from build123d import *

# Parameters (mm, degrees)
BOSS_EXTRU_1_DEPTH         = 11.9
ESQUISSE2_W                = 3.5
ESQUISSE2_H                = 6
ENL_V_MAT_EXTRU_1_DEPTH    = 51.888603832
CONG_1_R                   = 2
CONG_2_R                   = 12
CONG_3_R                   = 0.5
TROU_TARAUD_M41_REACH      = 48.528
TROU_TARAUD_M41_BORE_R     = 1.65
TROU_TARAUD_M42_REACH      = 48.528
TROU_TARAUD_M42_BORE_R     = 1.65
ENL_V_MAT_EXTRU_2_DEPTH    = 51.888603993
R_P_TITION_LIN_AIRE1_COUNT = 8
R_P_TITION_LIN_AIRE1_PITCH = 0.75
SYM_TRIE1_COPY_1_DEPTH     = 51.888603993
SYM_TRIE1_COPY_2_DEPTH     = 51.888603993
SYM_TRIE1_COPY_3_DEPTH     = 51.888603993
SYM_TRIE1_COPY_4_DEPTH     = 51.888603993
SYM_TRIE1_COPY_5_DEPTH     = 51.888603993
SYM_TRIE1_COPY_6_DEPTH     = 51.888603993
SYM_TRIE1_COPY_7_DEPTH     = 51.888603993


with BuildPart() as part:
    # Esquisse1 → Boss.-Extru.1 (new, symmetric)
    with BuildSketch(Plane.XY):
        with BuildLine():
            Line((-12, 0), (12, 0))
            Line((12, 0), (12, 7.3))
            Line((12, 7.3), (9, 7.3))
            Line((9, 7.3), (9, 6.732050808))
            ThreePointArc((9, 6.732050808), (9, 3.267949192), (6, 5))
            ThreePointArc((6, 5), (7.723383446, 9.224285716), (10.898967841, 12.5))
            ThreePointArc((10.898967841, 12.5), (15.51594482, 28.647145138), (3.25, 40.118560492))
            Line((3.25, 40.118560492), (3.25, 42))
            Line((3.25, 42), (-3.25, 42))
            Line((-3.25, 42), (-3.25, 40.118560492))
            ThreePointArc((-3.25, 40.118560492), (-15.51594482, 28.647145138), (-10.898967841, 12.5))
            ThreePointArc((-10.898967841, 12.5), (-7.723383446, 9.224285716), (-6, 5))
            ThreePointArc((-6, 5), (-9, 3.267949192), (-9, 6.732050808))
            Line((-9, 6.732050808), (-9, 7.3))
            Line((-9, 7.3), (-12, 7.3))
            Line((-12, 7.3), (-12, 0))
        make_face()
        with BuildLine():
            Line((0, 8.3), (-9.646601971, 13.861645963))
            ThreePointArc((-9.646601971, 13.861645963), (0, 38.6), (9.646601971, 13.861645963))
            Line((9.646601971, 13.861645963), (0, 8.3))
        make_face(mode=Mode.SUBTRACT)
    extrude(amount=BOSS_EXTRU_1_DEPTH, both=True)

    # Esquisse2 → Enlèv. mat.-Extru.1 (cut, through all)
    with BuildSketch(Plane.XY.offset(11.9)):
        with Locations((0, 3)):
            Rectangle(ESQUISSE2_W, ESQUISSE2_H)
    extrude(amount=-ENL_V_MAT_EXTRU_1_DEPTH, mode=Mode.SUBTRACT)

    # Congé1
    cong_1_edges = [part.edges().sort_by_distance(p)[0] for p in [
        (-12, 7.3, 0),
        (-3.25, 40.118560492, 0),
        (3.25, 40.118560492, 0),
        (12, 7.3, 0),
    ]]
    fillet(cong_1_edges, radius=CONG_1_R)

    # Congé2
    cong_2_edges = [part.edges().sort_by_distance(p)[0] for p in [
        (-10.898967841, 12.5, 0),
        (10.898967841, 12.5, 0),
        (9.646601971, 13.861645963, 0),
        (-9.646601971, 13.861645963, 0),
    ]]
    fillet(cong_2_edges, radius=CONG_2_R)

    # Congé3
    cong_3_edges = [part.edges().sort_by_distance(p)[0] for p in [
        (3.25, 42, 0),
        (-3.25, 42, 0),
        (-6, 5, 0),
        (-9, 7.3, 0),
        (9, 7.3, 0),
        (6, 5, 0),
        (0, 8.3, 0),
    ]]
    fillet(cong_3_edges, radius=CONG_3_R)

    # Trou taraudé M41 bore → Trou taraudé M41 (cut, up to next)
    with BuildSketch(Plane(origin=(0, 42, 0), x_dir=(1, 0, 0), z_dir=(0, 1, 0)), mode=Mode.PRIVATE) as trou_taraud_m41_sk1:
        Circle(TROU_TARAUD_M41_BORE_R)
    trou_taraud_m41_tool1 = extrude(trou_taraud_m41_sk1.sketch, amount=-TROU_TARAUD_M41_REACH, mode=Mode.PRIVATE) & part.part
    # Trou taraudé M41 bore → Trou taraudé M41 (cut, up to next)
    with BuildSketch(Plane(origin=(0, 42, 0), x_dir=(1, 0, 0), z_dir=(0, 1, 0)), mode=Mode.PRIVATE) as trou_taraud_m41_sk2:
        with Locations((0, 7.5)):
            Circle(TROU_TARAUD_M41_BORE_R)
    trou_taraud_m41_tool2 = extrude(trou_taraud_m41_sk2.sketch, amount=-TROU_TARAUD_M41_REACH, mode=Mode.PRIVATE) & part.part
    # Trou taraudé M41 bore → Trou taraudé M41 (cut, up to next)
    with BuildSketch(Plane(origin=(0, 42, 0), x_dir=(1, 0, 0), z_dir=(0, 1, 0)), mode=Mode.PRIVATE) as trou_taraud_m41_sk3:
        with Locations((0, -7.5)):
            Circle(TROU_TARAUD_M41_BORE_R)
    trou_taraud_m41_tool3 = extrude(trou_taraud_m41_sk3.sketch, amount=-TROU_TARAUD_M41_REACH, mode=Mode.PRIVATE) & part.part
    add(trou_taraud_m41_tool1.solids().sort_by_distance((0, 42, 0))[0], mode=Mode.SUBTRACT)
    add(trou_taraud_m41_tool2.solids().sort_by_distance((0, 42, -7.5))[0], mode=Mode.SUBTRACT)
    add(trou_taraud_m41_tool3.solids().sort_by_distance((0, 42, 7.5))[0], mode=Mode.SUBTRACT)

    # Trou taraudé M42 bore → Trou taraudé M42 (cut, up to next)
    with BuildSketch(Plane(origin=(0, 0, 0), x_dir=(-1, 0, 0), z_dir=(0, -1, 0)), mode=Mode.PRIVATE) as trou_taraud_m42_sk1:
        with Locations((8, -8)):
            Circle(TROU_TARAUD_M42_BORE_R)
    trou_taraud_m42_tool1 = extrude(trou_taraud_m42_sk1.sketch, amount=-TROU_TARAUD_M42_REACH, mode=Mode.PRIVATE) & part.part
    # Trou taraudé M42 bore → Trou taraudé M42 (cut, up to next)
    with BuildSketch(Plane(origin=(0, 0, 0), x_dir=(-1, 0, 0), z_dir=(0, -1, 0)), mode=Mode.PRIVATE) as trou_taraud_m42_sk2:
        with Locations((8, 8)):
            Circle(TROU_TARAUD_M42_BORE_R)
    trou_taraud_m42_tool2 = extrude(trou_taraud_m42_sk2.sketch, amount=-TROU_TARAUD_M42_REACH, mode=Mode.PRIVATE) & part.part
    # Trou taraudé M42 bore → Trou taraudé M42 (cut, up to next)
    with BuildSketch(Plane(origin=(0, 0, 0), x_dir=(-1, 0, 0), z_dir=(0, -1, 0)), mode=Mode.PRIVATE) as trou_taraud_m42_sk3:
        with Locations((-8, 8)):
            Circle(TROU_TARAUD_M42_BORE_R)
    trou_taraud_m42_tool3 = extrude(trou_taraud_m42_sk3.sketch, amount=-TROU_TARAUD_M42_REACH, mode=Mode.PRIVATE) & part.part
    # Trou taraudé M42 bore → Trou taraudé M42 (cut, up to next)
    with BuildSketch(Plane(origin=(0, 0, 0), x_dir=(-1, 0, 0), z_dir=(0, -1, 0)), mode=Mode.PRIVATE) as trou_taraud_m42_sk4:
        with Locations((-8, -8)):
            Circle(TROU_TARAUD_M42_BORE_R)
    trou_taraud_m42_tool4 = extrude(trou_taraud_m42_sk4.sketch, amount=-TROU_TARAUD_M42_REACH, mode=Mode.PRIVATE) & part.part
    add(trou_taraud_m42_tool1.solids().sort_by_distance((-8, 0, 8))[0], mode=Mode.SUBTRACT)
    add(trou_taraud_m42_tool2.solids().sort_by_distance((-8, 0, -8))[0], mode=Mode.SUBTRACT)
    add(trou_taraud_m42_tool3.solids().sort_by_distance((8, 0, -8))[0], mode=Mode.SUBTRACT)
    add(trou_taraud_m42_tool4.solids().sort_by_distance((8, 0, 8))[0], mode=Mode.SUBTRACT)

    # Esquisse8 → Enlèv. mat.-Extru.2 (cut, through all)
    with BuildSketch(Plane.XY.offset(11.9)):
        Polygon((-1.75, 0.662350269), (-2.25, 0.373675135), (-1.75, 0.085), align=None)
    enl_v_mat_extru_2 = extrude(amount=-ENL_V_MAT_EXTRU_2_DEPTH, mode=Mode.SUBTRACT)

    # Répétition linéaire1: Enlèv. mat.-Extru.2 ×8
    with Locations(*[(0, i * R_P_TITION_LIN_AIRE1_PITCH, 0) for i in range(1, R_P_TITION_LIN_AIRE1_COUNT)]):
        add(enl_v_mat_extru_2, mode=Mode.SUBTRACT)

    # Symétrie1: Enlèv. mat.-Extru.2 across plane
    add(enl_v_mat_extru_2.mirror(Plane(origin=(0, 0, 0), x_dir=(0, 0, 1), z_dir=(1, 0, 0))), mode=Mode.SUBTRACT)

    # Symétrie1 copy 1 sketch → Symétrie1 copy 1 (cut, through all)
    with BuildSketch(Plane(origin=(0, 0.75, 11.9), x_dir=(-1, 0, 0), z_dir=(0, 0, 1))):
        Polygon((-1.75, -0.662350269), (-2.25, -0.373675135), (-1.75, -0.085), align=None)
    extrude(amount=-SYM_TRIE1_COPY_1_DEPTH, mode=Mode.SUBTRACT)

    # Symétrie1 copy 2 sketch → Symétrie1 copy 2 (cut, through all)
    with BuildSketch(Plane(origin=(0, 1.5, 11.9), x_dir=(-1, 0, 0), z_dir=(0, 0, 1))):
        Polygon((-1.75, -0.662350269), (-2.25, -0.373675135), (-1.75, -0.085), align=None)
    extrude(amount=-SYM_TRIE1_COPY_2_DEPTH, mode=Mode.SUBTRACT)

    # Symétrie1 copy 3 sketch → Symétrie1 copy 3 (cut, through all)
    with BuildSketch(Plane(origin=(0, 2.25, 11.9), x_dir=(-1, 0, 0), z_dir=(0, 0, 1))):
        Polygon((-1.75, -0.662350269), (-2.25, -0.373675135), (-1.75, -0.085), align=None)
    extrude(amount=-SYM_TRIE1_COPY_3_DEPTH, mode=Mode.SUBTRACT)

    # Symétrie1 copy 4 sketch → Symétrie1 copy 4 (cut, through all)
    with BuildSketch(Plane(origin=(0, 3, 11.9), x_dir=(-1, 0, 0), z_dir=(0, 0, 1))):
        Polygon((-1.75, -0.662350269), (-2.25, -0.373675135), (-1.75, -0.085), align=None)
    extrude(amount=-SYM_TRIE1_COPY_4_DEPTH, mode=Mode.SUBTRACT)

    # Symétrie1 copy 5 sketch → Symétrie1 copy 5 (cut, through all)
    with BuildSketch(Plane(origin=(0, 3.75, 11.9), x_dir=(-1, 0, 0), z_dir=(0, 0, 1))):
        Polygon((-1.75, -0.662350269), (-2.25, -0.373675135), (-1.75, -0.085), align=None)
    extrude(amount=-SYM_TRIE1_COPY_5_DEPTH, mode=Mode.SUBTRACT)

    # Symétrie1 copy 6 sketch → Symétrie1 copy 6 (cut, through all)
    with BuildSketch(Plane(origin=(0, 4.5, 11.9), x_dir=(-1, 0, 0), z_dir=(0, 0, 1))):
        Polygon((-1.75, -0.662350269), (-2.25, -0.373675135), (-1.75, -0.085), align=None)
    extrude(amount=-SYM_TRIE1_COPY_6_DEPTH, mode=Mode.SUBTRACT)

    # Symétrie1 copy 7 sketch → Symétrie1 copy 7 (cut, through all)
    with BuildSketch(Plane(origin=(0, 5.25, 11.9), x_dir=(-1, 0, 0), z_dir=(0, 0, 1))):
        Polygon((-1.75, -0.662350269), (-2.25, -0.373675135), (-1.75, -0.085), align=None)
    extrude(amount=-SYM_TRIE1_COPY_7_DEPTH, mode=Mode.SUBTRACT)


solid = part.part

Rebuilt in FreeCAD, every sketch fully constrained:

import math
import FreeCAD as App
import Part
import Sketcher

V = App.Vector
Q = App.Units.Quantity


def edges_at(feature, points):
    """Names of the edges that pass closest to the given points."""
    edges = feature.Shape.Edges
    near = lambda p: min(range(len(edges)), key=lambda i: edges[i].distToShape(Part.Vertex(*p))[0])
    return sorted({f"Edge{near(p) + 1}" for p in points})

doc = App.newDocument("Part")
body = doc.addObject("PartDesign::Body", "Body")

# Sketch on XY plane
sketch1 = doc.addObject("Sketcher::SketchObject", "Sketch")
body.addObject(sketch1)
sketch1.AttachmentSupport = (doc.XY_Plane, [""])
sketch1.MapMode = "FlatFace"
sketch1.addGeometry(Part.LineSegment(V(-12, 0, 0), V(12, 0, 0)), False)
sketch1.addGeometry(Part.LineSegment(V(12, 0, 0), V(12, 7.3, 0)), False)
sketch1.addGeometry(Part.LineSegment(V(12, 7.3, 0), V(9, 7.3, 0)), False)
sketch1.addGeometry(Part.LineSegment(V(9, 7.3, 0), V(9, 6.7, 0)), False)
sketch1.addGeometry(Part.ArcOfCircle(Part.Circle(V(8, 5, 0), V(0, 0, 1), 2), math.radians(180), math.radians(420)), False)
sketch1.addGeometry(Part.ArcOfCircle(Part.Circle(V(17.8, 2.7, 0), V(0, 0, 1), 12), math.radians(125), math.radians(169)), False)
sketch1.addGeometry(Part.ArcOfCircle(Part.Circle(V(0, 24.4, 0), V(0, 0, 1), 16.1), math.radians(-47), math.radians(78)), False)
sketch1.addGeometry(Part.LineSegment(V(3.2, 40.1, 0), V(3.2, 42, 0)), False)
sketch1.addGeometry(Part.LineSegment(V(3.2, 42, 0), V(-3.2, 42, 0)), False)
sketch1.addGeometry(Part.LineSegment(V(-3.2, 42, 0), V(-3.2, 40.1, 0)), False)
sketch1.addGeometry(Part.ArcOfCircle(Part.Circle(V(0, 24.4, 0), V(0, 0, 1), 16.1), math.radians(102), math.radians(227)), False)
sketch1.addGeometry(Part.ArcOfCircle(Part.Circle(V(-17.8, 2.7, 0), V(0, 0, 1), 12), math.radians(11), math.radians(55)), False)
sketch1.addGeometry(Part.ArcOfCircle(Part.Circle(V(-8, 5, 0), V(0, 0, 1), 2), math.radians(120), math.radians(360)), False)
sketch1.addGeometry(Part.LineSegment(V(-9, 6.7, 0), V(-9, 7.3, 0)), False)
sketch1.addGeometry(Part.LineSegment(V(-9, 7.3, 0), V(-12, 7.3, 0)), False)
sketch1.addGeometry(Part.LineSegment(V(-12, 7.3, 0), V(-12, 0, 0)), False)
sketch1.addGeometry(Part.LineSegment(V(9.6, 13.9, 0), V(0, 8.3, 0)), False)
sketch1.addGeometry(Part.LineSegment(V(0, 8.3, 0), V(-9.6, 13.9, 0)), False)
sketch1.addGeometry(Part.ArcOfCircle(Part.Circle(V(0, 24.4, 0), V(0, 0, 1), 14.2), math.radians(-47), math.radians(227)), False)
sketch1.addConstraint(Sketcher.Constraint("Coincident", 0, 2, 1, 1))
sketch1.addConstraint(Sketcher.Constraint("Coincident", 1, 2, 2, 1))
sketch1.addConstraint(Sketcher.Constraint("Coincident", 2, 2, 3, 1))
sketch1.addConstraint(Sketcher.Constraint("Coincident", 3, 2, 4, 2))
sketch1.addConstraint(Sketcher.Constraint("Coincident", 4, 1, 5, 2))
sketch1.addConstraint(Sketcher.Constraint("Coincident", 5, 1, 6, 1))
sketch1.addConstraint(Sketcher.Constraint("Coincident", 6, 2, 7, 1))
sketch1.addConstraint(Sketcher.Constraint("Coincident", 7, 2, 8, 1))
sketch1.addConstraint(Sketcher.Constraint("Coincident", 8, 2, 9, 1))
sketch1.addConstraint(Sketcher.Constraint("Coincident", 9, 2, 10, 1))
sketch1.addConstraint(Sketcher.Constraint("Coincident", 10, 2, 11, 2))
sketch1.addConstraint(Sketcher.Constraint("Coincident", 11, 1, 12, 2))
sketch1.addConstraint(Sketcher.Constraint("Coincident", 12, 1, 13, 1))
sketch1.addConstraint(Sketcher.Constraint("Coincident", 13, 2, 14, 1))
sketch1.addConstraint(Sketcher.Constraint("Coincident", 14, 2, 15, 1))
sketch1.addConstraint(Sketcher.Constraint("Coincident", 15, 2, 0, 1))
sketch1.addConstraint(Sketcher.Constraint("Coincident", 16, 2, 17, 1))
sketch1.addConstraint(Sketcher.Constraint("Coincident", 17, 2, 18, 2))
sketch1.addConstraint(Sketcher.Constraint("Coincident", 18, 1, 16, 1))
sketch1.addConstraint(Sketcher.Constraint("Horizontal", 0))
sketch1.addConstraint(Sketcher.Constraint("Vertical", 1))
sketch1.addConstraint(Sketcher.Constraint("Horizontal", 2))
sketch1.addConstraint(Sketcher.Constraint("Vertical", 3))
sketch1.addConstraint(Sketcher.Constraint("Vertical", 7))
sketch1.addConstraint(Sketcher.Constraint("Horizontal", 8))
sketch1.addConstraint(Sketcher.Constraint("Vertical", 9))
sketch1.addConstraint(Sketcher.Constraint("Vertical", 13))
sketch1.addConstraint(Sketcher.Constraint("Horizontal", 14))
sketch1.addConstraint(Sketcher.Constraint("Vertical", 15))
sketch1.addConstraint(Sketcher.Constraint("Coincident", 10, 3, 6, 3))
sketch1.addConstraint(Sketcher.Constraint("Coincident", 18, 3, 6, 3))
sketch1.addConstraint(Sketcher.Constraint("Equal", 6, 10))
sketch1.addConstraint(Sketcher.Constraint("Equal", 5, 11))
sketch1.addConstraint(Sketcher.Constraint("Equal", 4, 12))
sketch1.addConstraint(Sketcher.Constraint("Symmetric", 0, 2, 15, 2, -1, 1))
sketch1.addConstraint(Sketcher.Constraint("Symmetric", 5, 3, 11, 3, -2))
sketch1.addConstraint(Sketcher.Constraint("Symmetric", 4, 3, 12, 3, -2))
sketch1.addConstraint(Sketcher.Constraint("Symmetric", 6, 2, 9, 2, -2))
sketch1.addConstraint(Sketcher.Constraint("Symmetric", 2, 2, 13, 2, -2))
sketch1.addConstraint(Sketcher.Constraint("PointOnObject", 16, 2, -2))
sketch1.addConstraint(Sketcher.Constraint("Horizontal", 12, 3, 4, 1))
sketch1.addConstraint(Sketcher.Constraint("Horizontal", 17, 2, 18, 1))
sketch1.addConstraint(Sketcher.Constraint("Radius", 4, Q("2 mm")))
sketch1.addConstraint(Sketcher.Constraint("Radius", 5, Q("12 mm")))
sketch1.addConstraint(Sketcher.Constraint("Radius", 6, Q("16.1 mm")))
sketch1.addConstraint(Sketcher.Constraint("DistanceX", 0, 1, 0, 2, Q("24 mm")))
sketch1.addConstraint(Sketcher.Constraint("DistanceX", 2, 2, 2, 1, Q("3 mm")))
sketch1.addConstraint(Sketcher.Constraint("Radius", 18, Q("14.25 mm")))
sketch1.addConstraint(Sketcher.Constraint("DistanceX", 8, 2, 8, 1, Q("6.5 mm")))
sketch1.addConstraint(Sketcher.Constraint("DistanceY", 1, 1, 1, 2, Q("7.3 mm")))
sketch1.addConstraint(Sketcher.Constraint("DistanceX", -1, 1, 4, 3, Q("8 mm")))
sketch1.addConstraint(Sketcher.Constraint("DistanceY", -1, 1, 4, 3, Q("5 mm")))
sketch1.addConstraint(Sketcher.Constraint("DistanceY", -1, 1, 7, 2, Q("42 mm")))
sketch1.addConstraint(Sketcher.Constraint("DistanceY", 2, 2, 16, 2, Q("1 mm")))
sketch1.addConstraint(Sketcher.Constraint("DistanceY", -1, 1, 5, 1, Q("12.5 mm")))
sketch1.addConstraint(Sketcher.Constraint("DistanceY", -1, 1, 6, 3, Q("24.35 mm")))
sketch1.addConstraint(Sketcher.Constraint("DistanceX", 17, 2, -1, 1, Q("9.646602 mm")))
pad1 = doc.addObject("PartDesign::Pad", "Pad")
body.addObject(pad1)
pad1.Profile = sketch1
pad1.Length = 23.8
pad1.Midplane = True

# Sketch on XY plane
sketch2 = doc.addObject("Sketcher::SketchObject", "Sketch001")
body.addObject(sketch2)
sketch2.AttachmentSupport = (doc.XY_Plane, [""])
sketch2.MapMode = "FlatFace"
sketch2.AttachmentOffset = App.Placement(V(0, 0, 11.9), App.Rotation())
sketch2.addGeometry(Part.LineSegment(V(-1.8, 6, 0), V(-1.8, 0, 0)), False)
sketch2.addGeometry(Part.LineSegment(V(-1.8, 0, 0), V(1.8, 0, 0)), False)
sketch2.addGeometry(Part.LineSegment(V(1.8, 0, 0), V(1.8, 6, 0)), False)
sketch2.addGeometry(Part.LineSegment(V(1.8, 6, 0), V(-1.8, 6, 0)), False)
sketch2.addConstraint(Sketcher.Constraint("Coincident", 0, 2, 1, 1))
sketch2.addConstraint(Sketcher.Constraint("Coincident", 1, 2, 2, 1))
sketch2.addConstraint(Sketcher.Constraint("Coincident", 2, 2, 3, 1))
sketch2.addConstraint(Sketcher.Constraint("Coincident", 3, 2, 0, 1))
sketch2.addConstraint(Sketcher.Constraint("Vertical", 0))
sketch2.addConstraint(Sketcher.Constraint("Horizontal", 1))
sketch2.addConstraint(Sketcher.Constraint("Vertical", 2))
sketch2.addConstraint(Sketcher.Constraint("Horizontal", 3))
sketch2.addConstraint(Sketcher.Constraint("Symmetric", 0, 2, 1, 2, -1, 1))
sketch2.addConstraint(Sketcher.Constraint("DistanceY", 0, 2, 0, 1, Q("6 mm")))
sketch2.addConstraint(Sketcher.Constraint("DistanceX", 1, 1, 1, 2, Q("3.5 mm")))
pocket1 = doc.addObject("PartDesign::Pocket", "Pocket")
body.addObject(pocket1)
pocket1.Profile = sketch2
pocket1.Type = "ThroughAll"
doc.recompute()

fillet = doc.addObject("PartDesign::Fillet", "Fillet")
body.addObject(fillet)
fillet.Base = (pocket1, edges_at(pocket1, [
    (-12, 7.3, 0),
    (-3.25, 40.119, 0),
    (3.25, 40.119, 0),
    (12, 7.3, 0),
]))
fillet.Radius = 2
doc.recompute()

fillet2 = doc.addObject("PartDesign::Fillet", "Fillet001")
body.addObject(fillet2)
fillet2.Base = (fillet, edges_at(fillet, [
    (-10.899, 12.5, 0),
    (10.899, 12.5, 0),
    (9.647, 13.862, 0),
    (-9.647, 13.862, 0),
]))
fillet2.Radius = 12
doc.recompute()

fillet3 = doc.addObject("PartDesign::Fillet", "Fillet002")
body.addObject(fillet3)
fillet3.Base = (fillet2, edges_at(fillet2, [
    (3.25, 42, 0),
    (-3.25, 42, 0),
    (-6, 5, 0),
    (-9, 7.3, 0),
    (9, 7.3, 0),
    (6, 5, 0),
    (0, 8.3, 0),
]))
fillet3.Radius = 0.5

# Sketch on XZ plane
sketch3 = doc.addObject("Sketcher::SketchObject", "Sketch002")
body.addObject(sketch3)
sketch3.AttachmentSupport = (doc.XZ_Plane, [""])
sketch3.MapMode = "FlatFace"
sketch3.AttachmentOffset = App.Placement(V(0, 0, -42), App.Rotation())
sketch3.addGeometry(Part.Circle(V(0, 0, 0), V(0, 0, 1), 1.6), False)
sketch3.addConstraint(Sketcher.Constraint("Coincident", 0, 3, -1, 1))
sketch3.addConstraint(Sketcher.Constraint("Diameter", 0, Q("3.3 mm")))
pocket2 = doc.addObject("PartDesign::Pocket", "Pocket001")
body.addObject(pocket2)
pocket2.Profile = sketch3
pocket2.Type = "UpToFirst"
pocket2.Reversed = True

# Sketch on XZ plane
sketch4 = doc.addObject("Sketcher::SketchObject", "Sketch003")
body.addObject(sketch4)
sketch4.AttachmentSupport = (doc.XZ_Plane, [""])
sketch4.MapMode = "FlatFace"
sketch4.AttachmentOffset = App.Placement(V(0, 0, -42), App.Rotation())
sketch4.addGeometry(Part.Circle(V(0, -7.5, 0), V(0, 0, 1), 1.6), False)
sketch4.addConstraint(Sketcher.Constraint("PointOnObject", 0, 3, -2))
sketch4.addConstraint(Sketcher.Constraint("Diameter", 0, Q("3.3 mm")))
sketch4.addConstraint(Sketcher.Constraint("DistanceY", 0, 3, -1, 1, Q("7.5 mm")))
pocket3 = doc.addObject("PartDesign::Pocket", "Pocket002")
body.addObject(pocket3)
pocket3.Profile = sketch4
pocket3.Type = "UpToFirst"
pocket3.Reversed = True

# Sketch on XZ plane
sketch5 = doc.addObject("Sketcher::SketchObject", "Sketch004")
body.addObject(sketch5)
sketch5.AttachmentSupport = (doc.XZ_Plane, [""])
sketch5.MapMode = "FlatFace"
sketch5.AttachmentOffset = App.Placement(V(0, 0, -42), App.Rotation())
sketch5.addGeometry(Part.Circle(V(0, 7.5, 0), V(0, 0, 1), 1.6), False)
sketch5.addConstraint(Sketcher.Constraint("PointOnObject", 0, 3, -2))
sketch5.addConstraint(Sketcher.Constraint("Diameter", 0, Q("3.3 mm")))
sketch5.addConstraint(Sketcher.Constraint("DistanceY", -1, 1, 0, 3, Q("7.5 mm")))
pocket4 = doc.addObject("PartDesign::Pocket", "Pocket003")
body.addObject(pocket4)
pocket4.Profile = sketch5
pocket4.Type = "UpToFirst"
pocket4.Reversed = True

# Sketch on XZ plane
sketch6 = doc.addObject("Sketcher::SketchObject", "Sketch005")
body.addObject(sketch6)
sketch6.AttachmentSupport = (doc.XZ_Plane, [""])
sketch6.MapMode = "FlatFace"
sketch6.addGeometry(Part.Circle(V(-8, 8, 0), V(0, 0, 1), 1.6), False)
sketch6.addConstraint(Sketcher.Constraint("Diameter", 0, Q("3.3 mm")))
sketch6.addConstraint(Sketcher.Constraint("DistanceX", 0, 3, -1, 1, Q("8 mm")))
sketch6.addConstraint(Sketcher.Constraint("DistanceY", -1, 1, 0, 3, Q("8 mm")))
pocket5 = doc.addObject("PartDesign::Pocket", "Pocket004")
body.addObject(pocket5)
pocket5.Profile = sketch6
pocket5.Type = "UpToFirst"

# Sketch on XZ plane
sketch7 = doc.addObject("Sketcher::SketchObject", "Sketch006")
body.addObject(sketch7)
sketch7.AttachmentSupport = (doc.XZ_Plane, [""])
sketch7.MapMode = "FlatFace"
sketch7.addGeometry(Part.Circle(V(-8, -8, 0), V(0, 0, 1), 1.6), False)
sketch7.addConstraint(Sketcher.Constraint("Diameter", 0, Q("3.3 mm")))
sketch7.addConstraint(Sketcher.Constraint("DistanceX", 0, 3, -1, 1, Q("8 mm")))
sketch7.addConstraint(Sketcher.Constraint("DistanceY", 0, 3, -1, 1, Q("8 mm")))
pocket6 = doc.addObject("PartDesign::Pocket", "Pocket005")
body.addObject(pocket6)
pocket6.Profile = sketch7
pocket6.Type = "UpToFirst"

# Sketch on XZ plane
sketch8 = doc.addObject("Sketcher::SketchObject", "Sketch007")
body.addObject(sketch8)
sketch8.AttachmentSupport = (doc.XZ_Plane, [""])
sketch8.MapMode = "FlatFace"
sketch8.addGeometry(Part.Circle(V(8, -8, 0), V(0, 0, 1), 1.6), False)
sketch8.addConstraint(Sketcher.Constraint("Diameter", 0, Q("3.3 mm")))
sketch8.addConstraint(Sketcher.Constraint("DistanceX", -1, 1, 0, 3, Q("8 mm")))
sketch8.addConstraint(Sketcher.Constraint("DistanceY", 0, 3, -1, 1, Q("8 mm")))
pocket7 = doc.addObject("PartDesign::Pocket", "Pocket006")
body.addObject(pocket7)
pocket7.Profile = sketch8
pocket7.Type = "UpToFirst"

# Sketch on XZ plane
sketch9 = doc.addObject("Sketcher::SketchObject", "Sketch008")
body.addObject(sketch9)
sketch9.AttachmentSupport = (doc.XZ_Plane, [""])
sketch9.MapMode = "FlatFace"
sketch9.addGeometry(Part.Circle(V(8, 8, 0), V(0, 0, 1), 1.6), False)
sketch9.addConstraint(Sketcher.Constraint("Diameter", 0, Q("3.3 mm")))
sketch9.addConstraint(Sketcher.Constraint("DistanceX", -1, 1, 0, 3, Q("8 mm")))
sketch9.addConstraint(Sketcher.Constraint("DistanceY", -1, 1, 0, 3, Q("8 mm")))
pocket8 = doc.addObject("PartDesign::Pocket", "Pocket007")
body.addObject(pocket8)
pocket8.Profile = sketch9
pocket8.Type = "UpToFirst"

# Sketch on XY plane
sketch10 = doc.addObject("Sketcher::SketchObject", "Sketch009")
body.addObject(sketch10)
sketch10.AttachmentSupport = (doc.XY_Plane, [""])
sketch10.MapMode = "FlatFace"
sketch10.AttachmentOffset = App.Placement(V(0, 0, 11.9), App.Rotation())
sketch10.addGeometry(Part.LineSegment(V(-1.8, 0.7, 0), V(-2.2, 0.4, 0)), False)
sketch10.addGeometry(Part.LineSegment(V(-2.2, 0.4, 0), V(-1.8, 0.1, 0)), False)
sketch10.addGeometry(Part.LineSegment(V(-1.8, 0.1, 0), V(-1.8, 0.7, 0)), False)
sketch10.addConstraint(Sketcher.Constraint("Coincident", 0, 2, 1, 1))
sketch10.addConstraint(Sketcher.Constraint("Coincident", 1, 2, 2, 1))
sketch10.addConstraint(Sketcher.Constraint("Coincident", 2, 2, 0, 1))
sketch10.addConstraint(Sketcher.Constraint("Vertical", 2))
sketch10.addConstraint(Sketcher.Constraint("Equal", 0, 1))
sketch10.addConstraint(Sketcher.Constraint("Angle", 0, Q("-150 deg")))
sketch10.addConstraint(Sketcher.Constraint("DistanceX", 0, 2, 1, 2, Q("0.5 mm")))
sketch10.addConstraint(Sketcher.Constraint("DistanceX", 0, 2, -1, 1, Q("2.25 mm")))
sketch10.addConstraint(Sketcher.Constraint("DistanceY", -1, 1, 1, 2, Q("0.085 mm")))
pocket9 = doc.addObject("PartDesign::Pocket", "Pocket008")
body.addObject(pocket9)
pocket9.Profile = sketch10
pocket9.Type = "ThroughAll"
doc.recompute()

linearpattern = doc.addObject("PartDesign::LinearPattern", "LinearPattern")
body.addObject(linearpattern)
linearpattern.Originals = [pocket9]
linearpattern.Direction = (doc.Y_Axis, [""])
linearpattern.Mode = "offset"
linearpattern.Offset = 0.75
linearpattern.Occurrences = 8
body.Tip = linearpattern
doc.recompute()

mirrored = doc.addObject("PartDesign::Mirrored", "Mirrored")
body.addObject(mirrored)
mirrored.Originals = [pocket9]
mirrored.MirrorPlane = (doc.YZ_Plane, [""])
body.Tip = mirrored

# Sketch on XY plane
sketch11 = doc.addObject("Sketcher::SketchObject", "Sketch010")
body.addObject(sketch11)
sketch11.AttachmentSupport = (doc.XY_Plane, [""])
sketch11.MapMode = "FlatFace"
sketch11.AttachmentOffset = App.Placement(V(0, 0, 11.9), App.Rotation())
sketch11.addGeometry(Part.LineSegment(V(2.2, 1.1, 0), V(1.8, 1.4, 0)), False)
sketch11.addGeometry(Part.LineSegment(V(1.8, 1.4, 0), V(1.8, 0.8, 0)), False)
sketch11.addGeometry(Part.LineSegment(V(1.8, 0.8, 0), V(2.2, 1.1, 0)), False)
sketch11.addConstraint(Sketcher.Constraint("Coincident", 0, 2, 1, 1))
sketch11.addConstraint(Sketcher.Constraint("Coincident", 1, 2, 2, 1))
sketch11.addConstraint(Sketcher.Constraint("Coincident", 2, 2, 0, 1))
sketch11.addConstraint(Sketcher.Constraint("Vertical", 1))
sketch11.addConstraint(Sketcher.Constraint("Equal", 0, 2))
sketch11.addConstraint(Sketcher.Constraint("Angle", 0, Q("150 deg")))
sketch11.addConstraint(Sketcher.Constraint("DistanceX", 0, 2, 2, 2, Q("0.5 mm")))
sketch11.addConstraint(Sketcher.Constraint("DistanceX", -1, 1, 0, 2, Q("1.75 mm")))
sketch11.addConstraint(Sketcher.Constraint("DistanceY", -1, 1, 1, 2, Q("0.835 mm")))
pocket10 = doc.addObject("PartDesign::Pocket", "Pocket009")
body.addObject(pocket10)
pocket10.Profile = sketch11
pocket10.Type = "ThroughAll"

# Sketch on XY plane
sketch12 = doc.addObject("Sketcher::SketchObject", "Sketch011")
body.addObject(sketch12)
sketch12.AttachmentSupport = (doc.XY_Plane, [""])
sketch12.MapMode = "FlatFace"
sketch12.AttachmentOffset = App.Placement(V(0, 0, 11.9), App.Rotation())
sketch12.addGeometry(Part.LineSegment(V(2.2, 1.9, 0), V(1.8, 2.2, 0)), False)
sketch12.addGeometry(Part.LineSegment(V(1.8, 2.2, 0), V(1.8, 1.6, 0)), False)
sketch12.addGeometry(Part.LineSegment(V(1.8, 1.6, 0), V(2.2, 1.9, 0)), False)
sketch12.addConstraint(Sketcher.Constraint("Coincident", 0, 2, 1, 1))
sketch12.addConstraint(Sketcher.Constraint("Coincident", 1, 2, 2, 1))
sketch12.addConstraint(Sketcher.Constraint("Coincident", 2, 2, 0, 1))
sketch12.addConstraint(Sketcher.Constraint("Vertical", 1))
sketch12.addConstraint(Sketcher.Constraint("Equal", 0, 2))
sketch12.addConstraint(Sketcher.Constraint("Angle", 0, Q("150 deg")))
sketch12.addConstraint(Sketcher.Constraint("DistanceX", 0, 2, 2, 2, Q("0.5 mm")))
sketch12.addConstraint(Sketcher.Constraint("DistanceX", -1, 1, 0, 2, Q("1.75 mm")))
sketch12.addConstraint(Sketcher.Constraint("DistanceY", -1, 1, 1, 2, Q("1.585 mm")))
pocket11 = doc.addObject("PartDesign::Pocket", "Pocket010")
body.addObject(pocket11)
pocket11.Profile = sketch12
pocket11.Type = "ThroughAll"

# Sketch on XY plane
sketch13 = doc.addObject("Sketcher::SketchObject", "Sketch012")
body.addObject(sketch13)
sketch13.AttachmentSupport = (doc.XY_Plane, [""])
sketch13.MapMode = "FlatFace"
sketch13.AttachmentOffset = App.Placement(V(0, 0, 11.9), App.Rotation())
sketch13.addGeometry(Part.LineSegment(V(2.2, 2.6, 0), V(1.8, 2.9, 0)), False)
sketch13.addGeometry(Part.LineSegment(V(1.8, 2.9, 0), V(1.8, 2.3, 0)), False)
sketch13.addGeometry(Part.LineSegment(V(1.8, 2.3, 0), V(2.2, 2.6, 0)), False)
sketch13.addConstraint(Sketcher.Constraint("Coincident", 0, 2, 1, 1))
sketch13.addConstraint(Sketcher.Constraint("Coincident", 1, 2, 2, 1))
sketch13.addConstraint(Sketcher.Constraint("Coincident", 2, 2, 0, 1))
sketch13.addConstraint(Sketcher.Constraint("Vertical", 1))
sketch13.addConstraint(Sketcher.Constraint("Equal", 0, 2))
sketch13.addConstraint(Sketcher.Constraint("Angle", 0, Q("150 deg")))
sketch13.addConstraint(Sketcher.Constraint("DistanceX", 0, 2, 2, 2, Q("0.5 mm")))
sketch13.addConstraint(Sketcher.Constraint("DistanceX", -1, 1, 0, 2, Q("1.75 mm")))
sketch13.addConstraint(Sketcher.Constraint("DistanceY", -1, 1, 1, 2, Q("2.335 mm")))
pocket12 = doc.addObject("PartDesign::Pocket", "Pocket011")
body.addObject(pocket12)
pocket12.Profile = sketch13
pocket12.Type = "ThroughAll"

# Sketch on XY plane
sketch14 = doc.addObject("Sketcher::SketchObject", "Sketch013")
body.addObject(sketch14)
sketch14.AttachmentSupport = (doc.XY_Plane, [""])
sketch14.MapMode = "FlatFace"
sketch14.AttachmentOffset = App.Placement(V(0, 0, 11.9), App.Rotation())
sketch14.addGeometry(Part.LineSegment(V(2.2, 3.4, 0), V(1.8, 3.7, 0)), False)
sketch14.addGeometry(Part.LineSegment(V(1.8, 3.7, 0), V(1.8, 3.1, 0)), False)
sketch14.addGeometry(Part.LineSegment(V(1.8, 3.1, 0), V(2.2, 3.4, 0)), False)
sketch14.addConstraint(Sketcher.Constraint("Coincident", 0, 2, 1, 1))
sketch14.addConstraint(Sketcher.Constraint("Coincident", 1, 2, 2, 1))
sketch14.addConstraint(Sketcher.Constraint("Coincident", 2, 2, 0, 1))
sketch14.addConstraint(Sketcher.Constraint("Vertical", 1))
sketch14.addConstraint(Sketcher.Constraint("Equal", 0, 2))
sketch14.addConstraint(Sketcher.Constraint("Angle", 0, Q("150 deg")))
sketch14.addConstraint(Sketcher.Constraint("DistanceX", 0, 2, 2, 2, Q("0.5 mm")))
sketch14.addConstraint(Sketcher.Constraint("DistanceX", -1, 1, 0, 2, Q("1.75 mm")))
sketch14.addConstraint(Sketcher.Constraint("DistanceY", -1, 1, 1, 2, Q("3.085 mm")))
pocket13 = doc.addObject("PartDesign::Pocket", "Pocket012")
body.addObject(pocket13)
pocket13.Profile = sketch14
pocket13.Type = "ThroughAll"

# Sketch on XY plane
sketch15 = doc.addObject("Sketcher::SketchObject", "Sketch014")
body.addObject(sketch15)
sketch15.AttachmentSupport = (doc.XY_Plane, [""])
sketch15.MapMode = "FlatFace"
sketch15.AttachmentOffset = App.Placement(V(0, 0, 11.9), App.Rotation())
sketch15.addGeometry(Part.LineSegment(V(2.2, 4.1, 0), V(1.8, 4.4, 0)), False)
sketch15.addGeometry(Part.LineSegment(V(1.8, 4.4, 0), V(1.8, 3.8, 0)), False)
sketch15.addGeometry(Part.LineSegment(V(1.8, 3.8, 0), V(2.2, 4.1, 0)), False)
sketch15.addConstraint(Sketcher.Constraint("Coincident", 0, 2, 1, 1))
sketch15.addConstraint(Sketcher.Constraint("Coincident", 1, 2, 2, 1))
sketch15.addConstraint(Sketcher.Constraint("Coincident", 2, 2, 0, 1))
sketch15.addConstraint(Sketcher.Constraint("Vertical", 1))
sketch15.addConstraint(Sketcher.Constraint("Equal", 0, 2))
sketch15.addConstraint(Sketcher.Constraint("Angle", 0, Q("150 deg")))
sketch15.addConstraint(Sketcher.Constraint("DistanceX", 0, 2, 2, 2, Q("0.5 mm")))
sketch15.addConstraint(Sketcher.Constraint("DistanceX", -1, 1, 0, 2, Q("1.75 mm")))
sketch15.addConstraint(Sketcher.Constraint("DistanceY", -1, 1, 1, 2, Q("3.835 mm")))
pocket14 = doc.addObject("PartDesign::Pocket", "Pocket013")
body.addObject(pocket14)
pocket14.Profile = sketch15
pocket14.Type = "ThroughAll"

# Sketch on XY plane
sketch16 = doc.addObject("Sketcher::SketchObject", "Sketch015")
body.addObject(sketch16)
sketch16.AttachmentSupport = (doc.XY_Plane, [""])
sketch16.MapMode = "FlatFace"
sketch16.AttachmentOffset = App.Placement(V(0, 0, 11.9), App.Rotation())
sketch16.addGeometry(Part.LineSegment(V(2.2, 4.9, 0), V(1.8, 5.2, 0)), False)
sketch16.addGeometry(Part.LineSegment(V(1.8, 5.2, 0), V(1.8, 4.6, 0)), False)
sketch16.addGeometry(Part.LineSegment(V(1.8, 4.6, 0), V(2.2, 4.9, 0)), False)
sketch16.addConstraint(Sketcher.Constraint("Coincident", 0, 2, 1, 1))
sketch16.addConstraint(Sketcher.Constraint("Coincident", 1, 2, 2, 1))
sketch16.addConstraint(Sketcher.Constraint("Coincident", 2, 2, 0, 1))
sketch16.addConstraint(Sketcher.Constraint("Vertical", 1))
sketch16.addConstraint(Sketcher.Constraint("Equal", 0, 2))
sketch16.addConstraint(Sketcher.Constraint("Angle", 0, Q("150 deg")))
sketch16.addConstraint(Sketcher.Constraint("DistanceX", 0, 2, 2, 2, Q("0.5 mm")))
sketch16.addConstraint(Sketcher.Constraint("DistanceX", -1, 1, 0, 2, Q("1.75 mm")))
sketch16.addConstraint(Sketcher.Constraint("DistanceY", -1, 1, 1, 2, Q("4.585 mm")))
pocket15 = doc.addObject("PartDesign::Pocket", "Pocket014")
body.addObject(pocket15)
pocket15.Profile = sketch16
pocket15.Type = "ThroughAll"

# Sketch on XY plane
sketch17 = doc.addObject("Sketcher::SketchObject", "Sketch016")
body.addObject(sketch17)
sketch17.AttachmentSupport = (doc.XY_Plane, [""])
sketch17.MapMode = "FlatFace"
sketch17.AttachmentOffset = App.Placement(V(0, 0, 11.9), App.Rotation())
sketch17.addGeometry(Part.LineSegment(V(2.2, 5.6, 0), V(1.8, 5.9, 0)), False)
sketch17.addGeometry(Part.LineSegment(V(1.8, 5.9, 0), V(1.8, 5.3, 0)), False)
sketch17.addGeometry(Part.LineSegment(V(1.8, 5.3, 0), V(2.2, 5.6, 0)), False)
sketch17.addConstraint(Sketcher.Constraint("Coincident", 0, 2, 1, 1))
sketch17.addConstraint(Sketcher.Constraint("Coincident", 1, 2, 2, 1))
sketch17.addConstraint(Sketcher.Constraint("Coincident", 2, 2, 0, 1))
sketch17.addConstraint(Sketcher.Constraint("Vertical", 1))
sketch17.addConstraint(Sketcher.Constraint("Equal", 0, 2))
sketch17.addConstraint(Sketcher.Constraint("Angle", 0, Q("150 deg")))
sketch17.addConstraint(Sketcher.Constraint("DistanceX", 0, 2, 2, 2, Q("0.5 mm")))
sketch17.addConstraint(Sketcher.Constraint("DistanceX", -1, 1, 0, 2, Q("1.75 mm")))
sketch17.addConstraint(Sketcher.Constraint("DistanceY", -1, 1, 1, 2, Q("5.335 mm")))
pocket16 = doc.addObject("PartDesign::Pocket", "Pocket015")
body.addObject(pocket16)
pocket16.Profile = sketch17
pocket16.Type = "ThroughAll"

doc.recompute()
